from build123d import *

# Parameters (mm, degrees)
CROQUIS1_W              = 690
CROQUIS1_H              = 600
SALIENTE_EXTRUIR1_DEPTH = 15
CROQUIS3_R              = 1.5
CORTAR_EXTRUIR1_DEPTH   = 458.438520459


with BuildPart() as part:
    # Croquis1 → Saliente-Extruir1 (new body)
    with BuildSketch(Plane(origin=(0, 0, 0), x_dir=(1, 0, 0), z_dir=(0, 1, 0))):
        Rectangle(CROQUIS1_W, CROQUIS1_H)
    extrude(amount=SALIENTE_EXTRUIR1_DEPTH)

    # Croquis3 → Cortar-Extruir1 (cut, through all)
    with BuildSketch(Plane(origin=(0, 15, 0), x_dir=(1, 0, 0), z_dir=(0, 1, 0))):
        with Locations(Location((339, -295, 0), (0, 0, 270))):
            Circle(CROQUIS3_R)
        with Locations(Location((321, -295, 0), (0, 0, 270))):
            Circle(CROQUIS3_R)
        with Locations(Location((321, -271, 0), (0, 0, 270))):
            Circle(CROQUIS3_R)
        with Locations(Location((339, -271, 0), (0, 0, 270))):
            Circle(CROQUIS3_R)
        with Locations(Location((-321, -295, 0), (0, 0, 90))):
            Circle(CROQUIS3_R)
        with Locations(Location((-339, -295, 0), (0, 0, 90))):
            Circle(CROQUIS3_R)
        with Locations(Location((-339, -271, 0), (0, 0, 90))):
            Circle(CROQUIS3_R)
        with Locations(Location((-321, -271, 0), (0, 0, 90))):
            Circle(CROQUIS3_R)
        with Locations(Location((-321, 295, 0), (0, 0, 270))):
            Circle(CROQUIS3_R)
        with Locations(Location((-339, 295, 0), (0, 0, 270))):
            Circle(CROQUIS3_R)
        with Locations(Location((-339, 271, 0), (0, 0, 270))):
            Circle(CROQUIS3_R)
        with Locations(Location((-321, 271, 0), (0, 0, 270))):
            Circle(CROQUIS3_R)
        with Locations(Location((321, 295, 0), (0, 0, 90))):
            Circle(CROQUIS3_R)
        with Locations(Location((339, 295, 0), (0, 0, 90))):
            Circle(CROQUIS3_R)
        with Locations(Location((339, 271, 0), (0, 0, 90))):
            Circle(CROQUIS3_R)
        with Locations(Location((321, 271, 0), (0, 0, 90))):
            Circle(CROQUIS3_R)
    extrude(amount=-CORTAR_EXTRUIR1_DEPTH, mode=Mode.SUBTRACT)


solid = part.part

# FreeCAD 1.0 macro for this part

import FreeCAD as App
import Part
import Sketcher
Q = App.Units.Quantity


def add_polygon(sketch, points):
    """Adds a closed chain of lines whose ends are joined by coincident constraints."""
    first, n = sketch.GeometryCount, len(points)
    for a, b in zip(points, points[1:] + points[:1]):
        sketch.addGeometry(Part.LineSegment(App.Vector(*a, 0), App.Vector(*b, 0)), False)
    for i in range(n):
        sketch.addConstraint(Sketcher.Constraint("Coincident", first + i, 2, first + (i + 1) % n, 1))

doc = App.newDocument("Part")
body = doc.addObject("PartDesign::Body", "Body")

sketch1 = body.newObject("Sketcher::SketchObject", "Sketch")
sketch1.AttachmentSupport = (doc.getObject("XZ_Plane"), [""])
sketch1.MapMode = "FlatFace"
add_polygon(sketch1, [(-345, -300), (-345, 300), (345, 300), (345, -300)])
sketch1.addConstraint([
    Sketcher.Constraint("Vertical", 0),
    Sketcher.Constraint("Horizontal", 1),
    Sketcher.Constraint("Vertical", 2),
    Sketcher.Constraint("Horizontal", 3),
    Sketcher.Constraint("Symmetric", 0, 2, 2, 2, -1, 1),
    Sketcher.Constraint("DistanceX", 1, 1, 1, 2, Q("690 mm")),
    Sketcher.Constraint("DistanceY", 0, 1, 0, 2, Q("600 mm")),
])
pad1 = body.newObject("PartDesign::Pad", "Pad")
pad1.Profile = sketch1
pad1.Length = 15
pad1.Reversed = True

sketch2 = body.newObject("Sketcher::SketchObject", "Sketch001")
sketch2.AttachmentSupport = (doc.getObject("XZ_Plane"), [""])
sketch2.MapMode = "FlatFace"
sketch2.AttachmentOffset = App.Placement(App.Vector(0, 0, -15), App.Rotation())
sketch2.addGeometry([
    Part.Circle(App.Vector(339, 295, 0), App.Vector(0, 0, 1), 1.5),
    Part.Circle(App.Vector(321, 295, 0), App.Vector(0, 0, 1), 1.5),
    Part.Circle(App.Vector(321, 271, 0), App.Vector(0, 0, 1), 1.5),
    Part.Circle(App.Vector(339, 271, 0), App.Vector(0, 0, 1), 1.5),
    Part.Circle(App.Vector(-321, 295, 0), App.Vector(0, 0, 1), 1.5),
    Part.Circle(App.Vector(-339, 295, 0), App.Vector(0, 0, 1), 1.5),
    Part.Circle(App.Vector(-339, 271, 0), App.Vector(0, 0, 1), 1.5),
    Part.Circle(App.Vector(-321, 271, 0), App.Vector(0, 0, 1), 1.5),
    Part.Circle(App.Vector(-321, -295, 0), App.Vector(0, 0, 1), 1.5),
    Part.Circle(App.Vector(-339, -295, 0), App.Vector(0, 0, 1), 1.5),
    Part.Circle(App.Vector(-339, -271, 0), App.Vector(0, 0, 1), 1.5),
    Part.Circle(App.Vector(-321, -271, 0), App.Vector(0, 0, 1), 1.5),
    Part.Circle(App.Vector(321, -295, 0), App.Vector(0, 0, 1), 1.5),
    Part.Circle(App.Vector(339, -295, 0), App.Vector(0, 0, 1), 1.5),
    Part.Circle(App.Vector(339, -271, 0), App.Vector(0, 0, 1), 1.5),
    Part.Circle(App.Vector(321, -271, 0), App.Vector(0, 0, 1), 1.5),
], False)
sketch2.addConstraint([
    Sketcher.Constraint("Equal", 0, 1),
    Sketcher.Constraint("Equal", 1, 2),
    Sketcher.Constraint("Equal", 2, 3),
    Sketcher.Constraint("Equal", 3, 4),
    Sketcher.Constraint("Equal", 4, 5),
    Sketcher.Constraint("Equal", 5, 6),
    Sketcher.Constraint("Equal", 6, 7),
    Sketcher.Constraint("Equal", 7, 8),
    Sketcher.Constraint("Equal", 8, 9),
    Sketcher.Constraint("Equal", 9, 10),
    Sketcher.Constraint("Equal", 10, 11),
    Sketcher.Constraint("Equal", 11, 12),
    Sketcher.Constraint("Equal", 12, 13),
    Sketcher.Constraint("Equal", 13, 14),
    Sketcher.Constraint("Equal", 14, 15),
    Sketcher.Constraint("Symmetric", 1, 3, 8, 3, -1, 1),
    Sketcher.Constraint("Symmetric", 0, 3, 9, 3, -1, 1),
    Sketcher.Constraint("Symmetric", 3, 3, 10, 3, -1, 1),
    Sketcher.Constraint("Symmetric", 2, 3, 11, 3, -1, 1),
    Sketcher.Constraint("Symmetric", 4, 3, 12, 3, -1, 1),
    Sketcher.Constraint("Symmetric", 5, 3, 13, 3, -1, 1),
    Sketcher.Constraint("Symmetric", 6, 3, 14, 3, -1, 1),
    Sketcher.Constraint("Symmetric", 7, 3, 15, 3, -1, 1),
    Sketcher.Constraint("Symmetric", 1, 3, 4, 3, -2),
    Sketcher.Constraint("Symmetric", 0, 3, 5, 3, -2),
    Sketcher.Constraint("Symmetric", 3, 3, 6, 3, -2),
    Sketcher.Constraint("Symmetric", 2, 3, 7, 3, -2),
    Sketcher.Constraint("Horizontal", 0, 3, 1, 3),
    Sketcher.Constraint("Horizontal", 2, 3, 3, 3),
    Sketcher.Constraint("Vertical", 1, 3, 2, 3),
    Sketcher.Constraint("Vertical", 0, 3, 3, 3),
    Sketcher.Constraint("Diameter", 0, Q("3 mm")),
    Sketcher.Constraint("DistanceX", -1, 1, 0, 3, Q("339 mm")),
    Sketcher.Constraint("DistanceY", -1, 1, 0, 3, Q("295 mm")),
    Sketcher.Constraint("DistanceX", -1, 1, 1, 3, Q("321 mm")),
    Sketcher.Constraint("DistanceY", -1, 1, 2, 3, Q("271 mm")),
])
pocket1 = body.newObject("PartDesign::Pocket", "Pocket")
pocket1.Profile = sketch2
pocket1.Type = "ThroughAll"
pocket1.Reversed = True

doc.recompute()
